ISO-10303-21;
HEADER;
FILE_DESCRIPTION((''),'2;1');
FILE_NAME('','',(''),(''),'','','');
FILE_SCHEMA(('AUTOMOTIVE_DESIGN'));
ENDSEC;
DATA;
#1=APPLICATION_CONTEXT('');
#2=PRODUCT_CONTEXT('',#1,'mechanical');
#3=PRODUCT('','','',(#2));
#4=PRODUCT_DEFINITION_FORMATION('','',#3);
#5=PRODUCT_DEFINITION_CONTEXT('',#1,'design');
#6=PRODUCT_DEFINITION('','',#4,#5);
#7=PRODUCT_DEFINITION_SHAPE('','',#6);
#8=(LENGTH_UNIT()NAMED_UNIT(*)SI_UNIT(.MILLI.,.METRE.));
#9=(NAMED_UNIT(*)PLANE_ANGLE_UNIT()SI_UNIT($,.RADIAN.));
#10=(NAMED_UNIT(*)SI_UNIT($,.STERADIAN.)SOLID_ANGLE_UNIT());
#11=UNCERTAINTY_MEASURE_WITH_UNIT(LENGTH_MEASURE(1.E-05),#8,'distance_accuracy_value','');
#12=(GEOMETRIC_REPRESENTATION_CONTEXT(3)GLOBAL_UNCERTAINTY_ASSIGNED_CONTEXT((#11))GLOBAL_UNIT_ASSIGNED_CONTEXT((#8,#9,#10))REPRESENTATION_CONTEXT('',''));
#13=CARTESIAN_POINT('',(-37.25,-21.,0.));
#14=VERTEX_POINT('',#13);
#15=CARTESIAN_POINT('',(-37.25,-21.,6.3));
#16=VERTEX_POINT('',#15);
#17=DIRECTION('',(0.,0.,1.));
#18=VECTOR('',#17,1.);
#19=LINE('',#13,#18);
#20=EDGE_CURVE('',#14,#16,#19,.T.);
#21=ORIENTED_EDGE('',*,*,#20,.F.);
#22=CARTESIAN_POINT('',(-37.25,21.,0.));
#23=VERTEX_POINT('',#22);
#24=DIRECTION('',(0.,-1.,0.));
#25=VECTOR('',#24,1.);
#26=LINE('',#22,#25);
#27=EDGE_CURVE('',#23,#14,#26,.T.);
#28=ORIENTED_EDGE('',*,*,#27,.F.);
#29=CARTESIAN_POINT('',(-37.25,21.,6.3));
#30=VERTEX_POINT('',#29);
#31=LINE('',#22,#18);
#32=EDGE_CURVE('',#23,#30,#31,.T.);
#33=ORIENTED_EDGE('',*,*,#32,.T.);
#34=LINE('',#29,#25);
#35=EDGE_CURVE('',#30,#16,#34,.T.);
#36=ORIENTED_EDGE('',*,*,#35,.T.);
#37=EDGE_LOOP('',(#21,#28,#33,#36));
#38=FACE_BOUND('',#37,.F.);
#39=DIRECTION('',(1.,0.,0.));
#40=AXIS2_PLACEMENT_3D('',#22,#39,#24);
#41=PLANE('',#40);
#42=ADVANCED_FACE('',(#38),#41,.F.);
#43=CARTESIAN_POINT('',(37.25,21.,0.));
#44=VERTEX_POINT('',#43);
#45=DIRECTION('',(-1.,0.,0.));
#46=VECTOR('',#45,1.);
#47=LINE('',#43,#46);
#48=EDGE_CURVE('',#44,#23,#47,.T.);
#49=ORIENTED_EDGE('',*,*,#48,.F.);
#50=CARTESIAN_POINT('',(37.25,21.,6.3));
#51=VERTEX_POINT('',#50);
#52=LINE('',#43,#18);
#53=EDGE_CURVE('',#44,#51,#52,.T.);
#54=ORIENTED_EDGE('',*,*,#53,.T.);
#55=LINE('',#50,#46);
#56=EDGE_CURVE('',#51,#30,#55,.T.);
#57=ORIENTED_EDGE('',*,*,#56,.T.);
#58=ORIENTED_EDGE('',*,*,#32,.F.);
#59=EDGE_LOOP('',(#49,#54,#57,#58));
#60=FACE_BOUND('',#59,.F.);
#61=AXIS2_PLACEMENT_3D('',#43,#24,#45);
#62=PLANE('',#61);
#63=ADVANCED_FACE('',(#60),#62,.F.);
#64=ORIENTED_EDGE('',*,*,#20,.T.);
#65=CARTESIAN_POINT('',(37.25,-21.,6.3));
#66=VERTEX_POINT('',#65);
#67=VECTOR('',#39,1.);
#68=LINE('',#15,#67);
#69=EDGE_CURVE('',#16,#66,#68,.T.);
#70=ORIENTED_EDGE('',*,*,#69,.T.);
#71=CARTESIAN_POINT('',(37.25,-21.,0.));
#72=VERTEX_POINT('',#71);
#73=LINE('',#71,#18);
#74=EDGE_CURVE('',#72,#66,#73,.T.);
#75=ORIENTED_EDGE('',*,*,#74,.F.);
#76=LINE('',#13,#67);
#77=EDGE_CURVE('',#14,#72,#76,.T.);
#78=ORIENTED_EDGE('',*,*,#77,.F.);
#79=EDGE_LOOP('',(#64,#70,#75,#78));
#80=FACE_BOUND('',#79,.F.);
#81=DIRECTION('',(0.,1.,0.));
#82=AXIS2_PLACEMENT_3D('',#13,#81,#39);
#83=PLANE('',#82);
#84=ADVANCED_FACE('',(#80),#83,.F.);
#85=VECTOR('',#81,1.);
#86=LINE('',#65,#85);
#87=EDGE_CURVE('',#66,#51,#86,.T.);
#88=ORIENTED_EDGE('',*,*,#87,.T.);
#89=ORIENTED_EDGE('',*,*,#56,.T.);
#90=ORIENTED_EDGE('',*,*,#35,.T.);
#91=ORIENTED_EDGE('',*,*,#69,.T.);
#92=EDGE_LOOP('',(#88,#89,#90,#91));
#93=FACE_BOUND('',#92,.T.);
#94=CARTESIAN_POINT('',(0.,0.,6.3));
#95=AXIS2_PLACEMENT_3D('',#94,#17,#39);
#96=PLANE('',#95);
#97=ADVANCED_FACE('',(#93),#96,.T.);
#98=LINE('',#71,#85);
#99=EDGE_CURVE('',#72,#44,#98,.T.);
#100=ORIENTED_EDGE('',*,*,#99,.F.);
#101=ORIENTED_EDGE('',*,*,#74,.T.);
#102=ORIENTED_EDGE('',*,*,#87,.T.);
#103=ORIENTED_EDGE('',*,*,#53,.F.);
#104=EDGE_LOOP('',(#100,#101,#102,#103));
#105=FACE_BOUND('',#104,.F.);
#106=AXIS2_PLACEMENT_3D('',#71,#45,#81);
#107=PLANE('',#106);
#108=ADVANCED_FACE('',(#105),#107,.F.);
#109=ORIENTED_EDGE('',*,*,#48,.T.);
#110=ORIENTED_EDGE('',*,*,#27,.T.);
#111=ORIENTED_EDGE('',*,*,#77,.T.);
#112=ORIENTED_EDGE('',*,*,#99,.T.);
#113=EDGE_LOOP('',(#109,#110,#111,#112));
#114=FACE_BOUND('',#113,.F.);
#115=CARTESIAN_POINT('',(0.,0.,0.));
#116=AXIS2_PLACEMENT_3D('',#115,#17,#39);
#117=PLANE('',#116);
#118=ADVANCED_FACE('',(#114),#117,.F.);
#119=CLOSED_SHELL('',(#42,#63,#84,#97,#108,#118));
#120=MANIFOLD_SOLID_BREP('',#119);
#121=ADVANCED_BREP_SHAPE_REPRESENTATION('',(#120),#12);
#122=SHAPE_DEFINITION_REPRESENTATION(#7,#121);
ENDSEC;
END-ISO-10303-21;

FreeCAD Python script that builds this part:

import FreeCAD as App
import Part
import Sketcher
Q = App.Units.Quantity

doc = App.newDocument("Part")
body = doc.addObject("PartDesign::Body", "Body")

# Sketch on XY plane
sketch1 = body.newObject("Sketcher::SketchObject", "Sketch")
sketch1.AttachmentSupport = (doc.getObject("XY_Plane"), [""])
sketch1.MapMode = "FlatFace"
sketch1.addGeometry([
    Part.LineSegment(App.Vector(37, -21, 0), App.Vector(37, 21, 0)),
    Part.LineSegment(App.Vector(37, 21, 0), App.Vector(-37, 21, 0)),
    Part.LineSegment(App.Vector(-37, 21, 0), App.Vector(-37, -21, 0)),
    Part.LineSegment(App.Vector(-37, -21, 0), App.Vector(37, -21, 0)),
], False)
sketch1.addConstraint([
    Sketcher.Constraint("Coincident", 0, 2, 1, 1),
    Sketcher.Constraint("Coincident", 1, 2, 2, 1),
    Sketcher.Constraint("Coincident", 2, 2, 3, 1),
    Sketcher.Constraint("Coincident", 3, 2, 0, 1),
    Sketcher.Constraint("Vertical", 0),
    Sketcher.Constraint("Horizontal", 1),
    Sketcher.Constraint("Vertical", 2),
    Sketcher.Constraint("Horizontal", 3),
    Sketcher.Constraint("Symmetric", 0, 2, 2, 2, -1, 1),
    Sketcher.Constraint("DistanceY", 0, 1, 0, 2, Q("42 mm")),
    Sketcher.Constraint("DistanceX", 1, 2, 1, 1, Q("74.5 mm")),
])
pad1 = body.newObject("PartDesign::Pad", "Pad")
pad1.Profile = sketch1
pad1.Length = 6.3

doc.recompute()
